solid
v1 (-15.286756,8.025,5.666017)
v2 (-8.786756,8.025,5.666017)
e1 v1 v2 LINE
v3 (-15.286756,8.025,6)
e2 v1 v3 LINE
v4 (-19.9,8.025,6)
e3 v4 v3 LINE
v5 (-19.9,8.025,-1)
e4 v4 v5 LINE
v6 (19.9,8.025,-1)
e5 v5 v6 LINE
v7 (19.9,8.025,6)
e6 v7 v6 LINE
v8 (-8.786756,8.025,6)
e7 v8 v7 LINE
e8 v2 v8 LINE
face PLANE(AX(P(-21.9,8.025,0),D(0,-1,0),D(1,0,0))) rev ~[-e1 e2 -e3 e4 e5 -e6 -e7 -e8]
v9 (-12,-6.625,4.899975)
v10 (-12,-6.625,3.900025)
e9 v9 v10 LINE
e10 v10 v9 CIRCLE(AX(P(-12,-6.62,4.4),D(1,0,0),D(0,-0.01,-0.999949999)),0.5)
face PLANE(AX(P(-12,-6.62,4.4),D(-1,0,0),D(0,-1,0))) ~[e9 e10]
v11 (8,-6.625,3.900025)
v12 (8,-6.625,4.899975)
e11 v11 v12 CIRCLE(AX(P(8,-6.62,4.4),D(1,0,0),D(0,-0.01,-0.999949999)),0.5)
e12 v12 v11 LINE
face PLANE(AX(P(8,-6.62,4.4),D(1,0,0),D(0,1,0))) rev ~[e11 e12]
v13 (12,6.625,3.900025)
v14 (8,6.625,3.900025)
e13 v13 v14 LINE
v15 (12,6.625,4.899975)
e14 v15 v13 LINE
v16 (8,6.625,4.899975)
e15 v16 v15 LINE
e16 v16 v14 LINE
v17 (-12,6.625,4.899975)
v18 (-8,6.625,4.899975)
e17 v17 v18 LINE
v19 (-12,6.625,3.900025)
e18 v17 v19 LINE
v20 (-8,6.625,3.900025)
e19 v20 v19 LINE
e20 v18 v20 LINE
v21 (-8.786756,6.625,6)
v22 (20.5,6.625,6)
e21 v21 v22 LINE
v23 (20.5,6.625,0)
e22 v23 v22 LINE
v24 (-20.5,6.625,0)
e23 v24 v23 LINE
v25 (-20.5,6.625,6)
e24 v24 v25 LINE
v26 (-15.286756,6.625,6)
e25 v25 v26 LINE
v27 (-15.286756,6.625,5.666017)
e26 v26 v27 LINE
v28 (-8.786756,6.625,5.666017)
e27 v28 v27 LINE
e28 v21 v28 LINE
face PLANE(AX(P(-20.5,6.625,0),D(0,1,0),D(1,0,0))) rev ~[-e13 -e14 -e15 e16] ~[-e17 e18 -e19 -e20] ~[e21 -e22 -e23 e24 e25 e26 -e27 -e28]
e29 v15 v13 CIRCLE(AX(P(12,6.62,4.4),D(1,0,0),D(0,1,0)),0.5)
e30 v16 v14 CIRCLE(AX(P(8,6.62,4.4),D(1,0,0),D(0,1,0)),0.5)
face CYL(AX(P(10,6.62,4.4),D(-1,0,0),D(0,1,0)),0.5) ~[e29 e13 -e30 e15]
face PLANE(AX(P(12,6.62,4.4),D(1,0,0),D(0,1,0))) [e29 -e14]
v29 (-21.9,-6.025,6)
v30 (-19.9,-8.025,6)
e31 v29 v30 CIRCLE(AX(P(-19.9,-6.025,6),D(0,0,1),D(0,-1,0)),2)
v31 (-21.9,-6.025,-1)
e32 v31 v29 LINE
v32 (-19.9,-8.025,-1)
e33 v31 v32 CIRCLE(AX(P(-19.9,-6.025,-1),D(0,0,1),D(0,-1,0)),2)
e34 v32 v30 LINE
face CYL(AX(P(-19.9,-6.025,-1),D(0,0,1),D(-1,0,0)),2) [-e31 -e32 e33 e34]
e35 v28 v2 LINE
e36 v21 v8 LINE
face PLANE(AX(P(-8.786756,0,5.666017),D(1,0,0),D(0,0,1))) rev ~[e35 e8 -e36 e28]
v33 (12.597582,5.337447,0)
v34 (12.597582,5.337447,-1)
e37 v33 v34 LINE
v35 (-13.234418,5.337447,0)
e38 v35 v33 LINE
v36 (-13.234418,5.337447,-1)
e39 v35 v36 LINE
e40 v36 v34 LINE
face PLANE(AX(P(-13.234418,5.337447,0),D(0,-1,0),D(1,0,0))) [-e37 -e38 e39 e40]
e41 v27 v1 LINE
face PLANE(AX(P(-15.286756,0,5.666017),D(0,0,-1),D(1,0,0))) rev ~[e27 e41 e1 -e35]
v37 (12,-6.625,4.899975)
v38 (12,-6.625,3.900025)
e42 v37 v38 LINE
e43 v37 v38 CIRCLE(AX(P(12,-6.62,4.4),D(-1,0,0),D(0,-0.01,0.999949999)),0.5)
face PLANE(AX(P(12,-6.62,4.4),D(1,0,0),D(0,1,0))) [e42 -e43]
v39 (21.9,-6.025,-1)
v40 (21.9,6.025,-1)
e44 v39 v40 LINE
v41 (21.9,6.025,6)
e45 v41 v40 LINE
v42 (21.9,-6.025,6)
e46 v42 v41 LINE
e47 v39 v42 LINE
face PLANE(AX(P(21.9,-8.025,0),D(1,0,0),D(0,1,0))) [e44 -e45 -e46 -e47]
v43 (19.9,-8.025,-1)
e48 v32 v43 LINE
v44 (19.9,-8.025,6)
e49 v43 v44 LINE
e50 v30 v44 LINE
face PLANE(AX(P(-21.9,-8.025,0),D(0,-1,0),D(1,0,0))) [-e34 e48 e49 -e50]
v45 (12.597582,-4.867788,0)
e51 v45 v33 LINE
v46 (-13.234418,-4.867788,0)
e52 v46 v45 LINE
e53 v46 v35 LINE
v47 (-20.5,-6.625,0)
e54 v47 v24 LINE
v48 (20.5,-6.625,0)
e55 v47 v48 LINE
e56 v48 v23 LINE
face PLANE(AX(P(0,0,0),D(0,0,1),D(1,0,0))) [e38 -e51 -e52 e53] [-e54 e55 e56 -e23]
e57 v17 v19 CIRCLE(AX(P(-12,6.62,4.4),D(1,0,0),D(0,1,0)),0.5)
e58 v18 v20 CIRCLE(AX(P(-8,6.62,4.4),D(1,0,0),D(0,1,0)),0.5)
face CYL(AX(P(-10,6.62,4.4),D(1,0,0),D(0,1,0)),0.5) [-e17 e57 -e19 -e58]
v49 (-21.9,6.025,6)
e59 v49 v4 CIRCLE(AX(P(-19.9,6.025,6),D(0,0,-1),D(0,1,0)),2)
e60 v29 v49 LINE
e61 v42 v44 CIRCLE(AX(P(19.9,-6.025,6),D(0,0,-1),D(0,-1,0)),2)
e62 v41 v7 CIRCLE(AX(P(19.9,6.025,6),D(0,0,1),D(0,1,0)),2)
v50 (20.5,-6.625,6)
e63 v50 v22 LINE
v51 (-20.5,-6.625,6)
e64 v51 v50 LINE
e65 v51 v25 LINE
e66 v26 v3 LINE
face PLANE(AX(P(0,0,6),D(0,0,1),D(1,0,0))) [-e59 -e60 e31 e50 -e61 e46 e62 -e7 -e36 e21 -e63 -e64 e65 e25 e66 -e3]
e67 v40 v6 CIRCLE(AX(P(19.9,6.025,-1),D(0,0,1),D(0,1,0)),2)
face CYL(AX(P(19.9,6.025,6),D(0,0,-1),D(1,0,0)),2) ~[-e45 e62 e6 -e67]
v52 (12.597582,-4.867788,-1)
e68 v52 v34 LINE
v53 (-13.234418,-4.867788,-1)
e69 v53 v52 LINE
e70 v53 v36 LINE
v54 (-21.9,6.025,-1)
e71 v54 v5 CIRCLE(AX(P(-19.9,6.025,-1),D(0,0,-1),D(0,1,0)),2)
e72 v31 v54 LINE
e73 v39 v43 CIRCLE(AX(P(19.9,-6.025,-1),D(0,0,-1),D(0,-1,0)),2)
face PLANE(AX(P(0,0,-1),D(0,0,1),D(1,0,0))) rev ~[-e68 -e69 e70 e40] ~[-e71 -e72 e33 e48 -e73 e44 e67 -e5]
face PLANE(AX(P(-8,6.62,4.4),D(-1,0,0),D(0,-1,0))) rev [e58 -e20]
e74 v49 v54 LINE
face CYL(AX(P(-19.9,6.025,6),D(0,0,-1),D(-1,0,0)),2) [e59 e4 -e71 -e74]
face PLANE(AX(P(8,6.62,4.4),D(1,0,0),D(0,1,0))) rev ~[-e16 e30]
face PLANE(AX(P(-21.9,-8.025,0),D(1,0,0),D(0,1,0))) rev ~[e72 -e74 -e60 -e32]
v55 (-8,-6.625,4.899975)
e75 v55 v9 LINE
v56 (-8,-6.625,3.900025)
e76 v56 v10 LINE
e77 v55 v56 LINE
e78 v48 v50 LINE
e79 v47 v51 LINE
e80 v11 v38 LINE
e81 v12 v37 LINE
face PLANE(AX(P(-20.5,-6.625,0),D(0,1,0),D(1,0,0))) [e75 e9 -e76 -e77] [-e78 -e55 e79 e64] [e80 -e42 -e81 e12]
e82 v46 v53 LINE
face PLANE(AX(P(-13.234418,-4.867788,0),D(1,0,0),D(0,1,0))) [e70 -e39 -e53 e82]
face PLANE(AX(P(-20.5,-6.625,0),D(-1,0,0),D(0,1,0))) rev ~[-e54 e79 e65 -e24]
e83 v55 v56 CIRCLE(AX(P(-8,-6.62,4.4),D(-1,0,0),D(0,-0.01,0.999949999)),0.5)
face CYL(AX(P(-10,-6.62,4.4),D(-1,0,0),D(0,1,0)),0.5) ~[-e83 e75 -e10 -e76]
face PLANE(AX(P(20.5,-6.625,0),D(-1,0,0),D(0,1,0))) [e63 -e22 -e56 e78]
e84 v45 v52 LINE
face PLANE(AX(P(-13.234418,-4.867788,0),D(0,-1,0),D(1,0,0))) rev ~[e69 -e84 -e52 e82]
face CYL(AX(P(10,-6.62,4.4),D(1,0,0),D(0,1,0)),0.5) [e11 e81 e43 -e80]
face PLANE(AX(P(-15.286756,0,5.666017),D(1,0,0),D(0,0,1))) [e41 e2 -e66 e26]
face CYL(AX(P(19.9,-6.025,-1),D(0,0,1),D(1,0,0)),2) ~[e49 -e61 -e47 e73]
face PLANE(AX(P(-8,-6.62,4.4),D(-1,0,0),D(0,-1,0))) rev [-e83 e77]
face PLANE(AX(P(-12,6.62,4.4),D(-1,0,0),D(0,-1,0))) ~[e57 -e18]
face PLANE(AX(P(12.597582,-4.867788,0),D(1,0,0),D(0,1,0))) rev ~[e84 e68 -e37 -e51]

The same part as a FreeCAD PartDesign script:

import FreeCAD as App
import Part
import Sketcher

V = App.Vector


def edges_at(feature, points):
    """Names of the edges that pass closest to the given points."""
    edges = feature.Shape.Edges
    near = lambda p: min(range(len(edges)), key=lambda i: edges[i].distToShape(Part.Vertex(*p))[0])
    return sorted({f"Edge{near(p) + 1}" for p in points})


def add_polygon(sketch, points):
    """Adds a closed chain of lines whose ends are joined by coincident constraints."""
    first, n = sketch.GeometryCount, len(points)
    for a, b in zip(points, points[1:] + points[:1]):
        sketch.addGeometry(Part.LineSegment(App.Vector(*a, 0), App.Vector(*b, 0)), False)
    for i in range(n):
        sketch.addConstraint(Sketcher.Constraint("Coincident", first + i, 2, first + (i + 1) % n, 1))

doc = App.newDocument("Part")
body = doc.addObject("PartDesign::Body", "Body")

# Sketch on XY plane
sketch1 = doc.addObject("Sketcher::SketchObject", "Sketch")
body.addObject(sketch1)
sketch1.AttachmentSupport = (doc.XY_Plane, [""])
sketch1.MapMode = "FlatFace"
add_polygon(sketch1, [(-22, 8), (-22, -8), (22, -8), (22, 8)])  # lines 0-3
add_polygon(sketch1, [(20, -7), (-20, -7), (-20, 7), (20, 7)])  # lines 4-7
sketch1.addConstraint([
    Sketcher.Constraint("Vertical", 0),
    Sketcher.Constraint("Horizontal", 1),
    Sketcher.Constraint("Vertical", 2),
    Sketcher.Constraint("Horizontal", 3),
    Sketcher.Constraint("Horizontal", 4),
    Sketcher.Constraint("Vertical", 5),
    Sketcher.Constraint("Horizontal", 6),
    Sketcher.Constraint("Vertical", 7),
    Sketcher.Constraint("Symmetric", 0, 2, 2, 2, -1, 1),
    Sketcher.Constraint("Symmetric", 4, 2, 6, 2, -1, 1),
    Sketcher.Constraint("DistanceX", 4, 2, 4, 1, 41.0),
    Sketcher.Constraint("DistanceX", 1, 1, 1, 2, 43.8),
    Sketcher.Constraint("DistanceY", 0, 2, 0, 1, 16.05),
    Sketcher.Constraint("DistanceY", 5, 1, 5, 2, 13.25),
])
pad1 = doc.addObject("PartDesign::Pad", "Pad")
body.addObject(pad1)
pad1.Profile = sketch1
pad1.Length = 6

# Sketch on XY plane
sketch2 = doc.addObject("Sketcher::SketchObject", "Sketch001")
body.addObject(sketch2)
sketch2.AttachmentSupport = (doc.XY_Plane, [""])
sketch2.MapMode = "FlatFace"
add_polygon(sketch2, [(-22, 8), (-22, -8), (22, -8), (22, 8)])  # lines 0-3
add_polygon(sketch2, [(13, -5), (-13, -5), (-13, 5), (13, 5)])  # lines 4-7
sketch2.addConstraint([
    Sketcher.Constraint("Vertical", 0),
    Sketcher.Constraint("Horizontal", 1),
    Sketcher.Constraint("Vertical", 2),
    Sketcher.Constraint("Horizontal", 3),
    Sketcher.Constraint("Horizontal", 4),
    Sketcher.Constraint("Vertical", 5),
    Sketcher.Constraint("Horizontal", 6),
    Sketcher.Constraint("Vertical", 7),
    Sketcher.Constraint("Symmetric", 0, 2, 2, 2, -1, 1),
    Sketcher.Constraint("DistanceX", 1, 1, 1, 2, 43.8),
    Sketcher.Constraint("DistanceY", 0, 2, 0, 1, 16.05),
    Sketcher.Constraint("DistanceX", 4, 2, 4, 1, 25.832),
    Sketcher.Constraint("DistanceY", 5, 1, 5, 2, 10.205235),
    Sketcher.Constraint("DistanceX", -1, 1, 6, 2, 12.597582),
    Sketcher.Constraint("DistanceY", 4, 2, -1, 1, 4.867788),
])
pad2 = doc.addObject("PartDesign::Pad", "Pad001")
body.addObject(pad2)
pad2.Profile = sketch2
pad2.Length = 1
pad2.Reversed = True
doc.recompute()

fillet = doc.addObject("PartDesign::Fillet", "Fillet")
body.addObject(fillet)
fillet.Base = (pad2, edges_at(pad2, [
    (-21.9, -8.025, 2.5),
    (21.9, -8.025, 2.5),
    (-21.9, 8.025, 2.5),
    (21.9, 8.025, 2.5),
]))
fillet.Radius = 2

# Sketch on XZ plane
sketch3 = doc.addObject("Sketcher::SketchObject", "Sketch002")
body.addObject(sketch3)
sketch3.AttachmentSupport = (doc.XZ_Plane, [""])
sketch3.MapMode = "FlatFace"
add_polygon(sketch3, [(-15.3, 10.4), (-15.3, 5.7), (-8.8, 5.7), (-8.8, 10.4)])  # lines 0-3
sketch3.addConstraint([
    Sketcher.Constraint("Vertical", 0),
    Sketcher.Constraint("Horizontal", 1),
    Sketcher.Constraint("Vertical", 2),
    Sketcher.Constraint("Horizontal", 3),
    Sketcher.Constraint("DistanceX", 1, 1, 1, 2, 6.5),
    Sketcher.Constraint("DistanceY", -1, 1, 2, 2, 10.381001),
    Sketcher.Constraint("DistanceY", 0, 2, 0, 1, 4.714983),
    Sketcher.Constraint("DistanceX", 0, 2, -1, 1, 15.286756),
])
pocket1 = doc.addObject("PartDesign::Pocket", "Pocket")
body.addObject(pocket1)
pocket1.Profile = sketch3
pocket1.Type = "ThroughAll"

# Sketch on YZ plane
sketch4 = doc.addObject("Sketcher::SketchObject", "Sketch003")
body.addObject(sketch4)
sketch4.AttachmentSupport = (doc.YZ_Plane, [""])
sketch4.MapMode = "FlatFace"
sketch4.AttachmentOffset = App.Placement(V(0, 0, 10), App.Rotation())
sketch4.addGeometry([
    Part.Circle(V(6.6, 4.4, 0), V(0, 0, 1), 0.5),
    Part.Circle(V(-6.6, 4.4, 0), V(0, 0, 1), 0.5),
], False)
sketch4.addConstraint([
    Sketcher.Constraint("Equal", 0, 1),
    Sketcher.Constraint("Symmetric", 0, 3, 1, 3, -2),
    Sketcher.Constraint("Diameter", 0, 1.0),
    Sketcher.Constraint("DistanceY", -1, 1, 0, 3, 4.4),
    Sketcher.Constraint("DistanceX", -1, 1, 0, 3, 6.62),
])
pad3 = doc.addObject("PartDesign::Pad", "Pad002")
body.addObject(pad3)
pad3.Profile = sketch4
pad3.Length = 4
pad3.Midplane = True
doc.recompute()

mirrored = doc.addObject("PartDesign::Mirrored", "Mirrored")
body.addObject(mirrored)
mirrored.Originals = [pad3]
mirrored.MirrorPlane = (doc.YZ_Plane, [""])
body.Tip = mirrored

doc.recompute()
